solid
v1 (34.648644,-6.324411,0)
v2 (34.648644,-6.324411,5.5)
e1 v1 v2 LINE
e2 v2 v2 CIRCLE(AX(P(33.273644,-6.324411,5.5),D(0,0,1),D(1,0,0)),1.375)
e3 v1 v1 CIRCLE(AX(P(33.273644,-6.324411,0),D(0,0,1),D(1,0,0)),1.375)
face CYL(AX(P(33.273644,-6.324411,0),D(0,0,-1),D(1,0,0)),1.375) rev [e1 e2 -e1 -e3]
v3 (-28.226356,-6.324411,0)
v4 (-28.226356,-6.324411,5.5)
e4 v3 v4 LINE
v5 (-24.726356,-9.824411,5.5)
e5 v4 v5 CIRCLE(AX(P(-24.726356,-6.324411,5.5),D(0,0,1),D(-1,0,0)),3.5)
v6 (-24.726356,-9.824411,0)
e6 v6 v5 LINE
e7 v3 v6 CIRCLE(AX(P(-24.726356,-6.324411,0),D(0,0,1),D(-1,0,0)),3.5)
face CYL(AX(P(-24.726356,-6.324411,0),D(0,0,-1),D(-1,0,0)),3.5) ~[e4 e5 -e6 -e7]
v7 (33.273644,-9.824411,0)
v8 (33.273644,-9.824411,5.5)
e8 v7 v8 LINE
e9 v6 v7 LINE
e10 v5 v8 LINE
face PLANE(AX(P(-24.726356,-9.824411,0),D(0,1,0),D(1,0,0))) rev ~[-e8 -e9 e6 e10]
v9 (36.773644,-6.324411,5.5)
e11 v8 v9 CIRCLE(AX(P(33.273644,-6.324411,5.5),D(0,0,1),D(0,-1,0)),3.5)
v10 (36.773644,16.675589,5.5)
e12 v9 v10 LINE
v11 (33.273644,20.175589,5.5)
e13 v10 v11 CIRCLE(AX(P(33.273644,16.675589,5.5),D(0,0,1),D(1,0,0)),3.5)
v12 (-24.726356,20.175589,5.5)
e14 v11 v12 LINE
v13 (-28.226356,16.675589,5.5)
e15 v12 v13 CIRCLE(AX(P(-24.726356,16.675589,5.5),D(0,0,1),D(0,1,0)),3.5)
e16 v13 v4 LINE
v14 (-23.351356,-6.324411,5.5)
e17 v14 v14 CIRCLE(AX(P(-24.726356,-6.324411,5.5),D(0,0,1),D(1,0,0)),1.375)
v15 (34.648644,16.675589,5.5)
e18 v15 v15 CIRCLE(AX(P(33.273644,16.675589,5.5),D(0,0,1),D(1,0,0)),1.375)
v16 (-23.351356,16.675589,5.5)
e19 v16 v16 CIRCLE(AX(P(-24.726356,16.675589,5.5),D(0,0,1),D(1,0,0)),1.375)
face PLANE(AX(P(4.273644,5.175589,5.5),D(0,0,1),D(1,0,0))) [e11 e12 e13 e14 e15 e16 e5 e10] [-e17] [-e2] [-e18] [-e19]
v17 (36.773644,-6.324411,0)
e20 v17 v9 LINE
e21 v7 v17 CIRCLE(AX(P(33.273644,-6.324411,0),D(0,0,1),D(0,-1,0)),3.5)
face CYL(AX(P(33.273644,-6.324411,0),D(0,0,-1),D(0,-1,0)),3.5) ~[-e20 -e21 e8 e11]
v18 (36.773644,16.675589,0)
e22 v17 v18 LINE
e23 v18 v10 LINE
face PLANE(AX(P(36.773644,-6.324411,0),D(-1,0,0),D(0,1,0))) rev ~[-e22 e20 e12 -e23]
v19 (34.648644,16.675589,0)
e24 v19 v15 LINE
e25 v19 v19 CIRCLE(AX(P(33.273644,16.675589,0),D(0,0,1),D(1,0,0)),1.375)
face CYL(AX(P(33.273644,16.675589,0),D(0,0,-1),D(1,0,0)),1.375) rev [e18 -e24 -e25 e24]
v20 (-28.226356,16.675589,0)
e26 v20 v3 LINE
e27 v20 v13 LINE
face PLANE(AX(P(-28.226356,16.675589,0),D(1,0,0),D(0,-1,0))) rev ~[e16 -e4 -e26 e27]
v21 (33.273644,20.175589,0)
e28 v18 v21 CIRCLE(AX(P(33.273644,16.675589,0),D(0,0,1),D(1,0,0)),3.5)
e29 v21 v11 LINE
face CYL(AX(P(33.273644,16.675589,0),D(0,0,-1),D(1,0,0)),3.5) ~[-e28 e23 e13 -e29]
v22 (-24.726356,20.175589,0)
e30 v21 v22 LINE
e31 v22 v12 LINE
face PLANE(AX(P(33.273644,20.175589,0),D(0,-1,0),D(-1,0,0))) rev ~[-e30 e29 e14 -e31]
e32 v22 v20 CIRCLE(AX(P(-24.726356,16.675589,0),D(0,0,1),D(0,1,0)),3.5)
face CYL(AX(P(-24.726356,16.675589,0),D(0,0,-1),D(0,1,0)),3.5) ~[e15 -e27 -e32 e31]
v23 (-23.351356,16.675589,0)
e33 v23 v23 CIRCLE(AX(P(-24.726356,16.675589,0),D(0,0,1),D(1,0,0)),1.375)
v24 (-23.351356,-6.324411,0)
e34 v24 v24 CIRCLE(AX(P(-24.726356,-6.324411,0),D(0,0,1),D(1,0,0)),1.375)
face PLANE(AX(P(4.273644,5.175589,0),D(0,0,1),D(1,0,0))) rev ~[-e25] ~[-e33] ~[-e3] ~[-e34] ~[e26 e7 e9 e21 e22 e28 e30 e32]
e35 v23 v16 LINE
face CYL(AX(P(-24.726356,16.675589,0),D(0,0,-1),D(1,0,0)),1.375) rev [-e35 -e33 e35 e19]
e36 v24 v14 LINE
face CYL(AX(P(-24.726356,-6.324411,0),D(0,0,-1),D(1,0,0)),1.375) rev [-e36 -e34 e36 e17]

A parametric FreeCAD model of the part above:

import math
import FreeCAD as App
import Part
import Sketcher

V = App.Vector

doc = App.newDocument("Part")
body = doc.addObject("PartDesign::Body", "Body")

# Sketch on XY plane
sketch1 = doc.addObject("Sketcher::SketchObject", "Sketch")
body.addObject(sketch1)
sketch1.AttachmentSupport = (doc.XY_Plane, [""])
sketch1.MapMode = "FlatFace"
sketch1.addGeometry([
    Part.LineSegment(V(33.3, 20.2, 0), V(-24.7, 20.2, 0)),  # 0
    Part.ArcOfCircle(Part.Circle(V(-24.7, 16.7, 0), V(0, 0, 1), 3.5), math.radians(90), math.radians(180)),  # 1
    Part.LineSegment(V(-28.2, 16.7, 0), V(-28.2, -6.3, 0)),  # 2
    Part.ArcOfCircle(Part.Circle(V(-24.7, -6.3, 0), V(0, 0, 1), 3.5), math.radians(180), math.radians(270)),  # 3
    Part.LineSegment(V(-24.7, -9.8, 0), V(33.3, -9.8, 0)),  # 4
    Part.ArcOfCircle(Part.Circle(V(33.3, -6.3, 0), V(0, 0, 1), 3.5), math.radians(-90), math.radians(0)),  # 5
    Part.LineSegment(V(36.8, -6.3, 0), V(36.8, 16.7, 0)),  # 6
    Part.ArcOfCircle(Part.Circle(V(33.3, 16.7, 0), V(0, 0, 1), 3.5), math.radians(0), math.radians(90)),  # 7
    Part.Circle(V(-24.7, -6.3, 0), V(0, 0, 1), 1.4),  # 8
    Part.Circle(V(33.3, -6.3, 0), V(0, 0, 1), 1.4),  # 9
    Part.Circle(V(-24.7, 16.7, 0), V(0, 0, 1), 1.4),  # 10
    Part.Circle(V(33.3, 16.7, 0), V(0, 0, 1), 1.4),  # 11
], False)
sketch1.addConstraint([
    Sketcher.Constraint("Tangent", 0, 2, 1, 1),
    Sketcher.Constraint("Tangent", 1, 2, 2, 1),
    Sketcher.Constraint("Tangent", 2, 2, 3, 1),
    Sketcher.Constraint("Tangent", 3, 2, 4, 1),
    Sketcher.Constraint("Tangent", 4, 2, 5, 1),
    Sketcher.Constraint("Tangent", 5, 2, 6, 1),
    Sketcher.Constraint("Tangent", 6, 2, 7, 1),
    Sketcher.Constraint("Tangent", 7, 2, 0, 1),
    Sketcher.Constraint("Horizontal", 0),
    Sketcher.Constraint("Vertical", 2),
    Sketcher.Constraint("Horizontal", 4),
    Sketcher.Constraint("Vertical", 6),
    Sketcher.Constraint("Coincident", 8, 3, 3, 3),
    Sketcher.Constraint("Coincident", 9, 3, 5, 3),
    Sketcher.Constraint("Coincident", 10, 3, 1, 3),
    Sketcher.Constraint("Coincident", 11, 3, 7, 3),
    Sketcher.Constraint("Equal", 1, 3),
    Sketcher.Constraint("Equal", 3, 5),
    Sketcher.Constraint("Equal", 5, 7),
    Sketcher.Constraint("Equal", 8, 9),
    Sketcher.Constraint("Equal", 9, 10),
    Sketcher.Constraint("Equal", 10, 11),
    Sketcher.Constraint("Radius", 1, 3.5),
    Sketcher.Constraint("Diameter", 8, 2.75),
    Sketcher.Constraint("DistanceX", 0, 2, 0, 1, 58.0),
    Sketcher.Constraint("DistanceY", 2, 2, 2, 1, 23.0),
    Sketcher.Constraint("DistanceY", -1, 1, 1, 3, 16.675589),
    Sketcher.Constraint("DistanceX", 1, 3, -1, 1, 24.726356),
])
pad1 = doc.addObject("PartDesign::Pad", "Pad")
body.addObject(pad1)
pad1.Profile = sketch1
pad1.Length = 5.5

doc.recompute()
